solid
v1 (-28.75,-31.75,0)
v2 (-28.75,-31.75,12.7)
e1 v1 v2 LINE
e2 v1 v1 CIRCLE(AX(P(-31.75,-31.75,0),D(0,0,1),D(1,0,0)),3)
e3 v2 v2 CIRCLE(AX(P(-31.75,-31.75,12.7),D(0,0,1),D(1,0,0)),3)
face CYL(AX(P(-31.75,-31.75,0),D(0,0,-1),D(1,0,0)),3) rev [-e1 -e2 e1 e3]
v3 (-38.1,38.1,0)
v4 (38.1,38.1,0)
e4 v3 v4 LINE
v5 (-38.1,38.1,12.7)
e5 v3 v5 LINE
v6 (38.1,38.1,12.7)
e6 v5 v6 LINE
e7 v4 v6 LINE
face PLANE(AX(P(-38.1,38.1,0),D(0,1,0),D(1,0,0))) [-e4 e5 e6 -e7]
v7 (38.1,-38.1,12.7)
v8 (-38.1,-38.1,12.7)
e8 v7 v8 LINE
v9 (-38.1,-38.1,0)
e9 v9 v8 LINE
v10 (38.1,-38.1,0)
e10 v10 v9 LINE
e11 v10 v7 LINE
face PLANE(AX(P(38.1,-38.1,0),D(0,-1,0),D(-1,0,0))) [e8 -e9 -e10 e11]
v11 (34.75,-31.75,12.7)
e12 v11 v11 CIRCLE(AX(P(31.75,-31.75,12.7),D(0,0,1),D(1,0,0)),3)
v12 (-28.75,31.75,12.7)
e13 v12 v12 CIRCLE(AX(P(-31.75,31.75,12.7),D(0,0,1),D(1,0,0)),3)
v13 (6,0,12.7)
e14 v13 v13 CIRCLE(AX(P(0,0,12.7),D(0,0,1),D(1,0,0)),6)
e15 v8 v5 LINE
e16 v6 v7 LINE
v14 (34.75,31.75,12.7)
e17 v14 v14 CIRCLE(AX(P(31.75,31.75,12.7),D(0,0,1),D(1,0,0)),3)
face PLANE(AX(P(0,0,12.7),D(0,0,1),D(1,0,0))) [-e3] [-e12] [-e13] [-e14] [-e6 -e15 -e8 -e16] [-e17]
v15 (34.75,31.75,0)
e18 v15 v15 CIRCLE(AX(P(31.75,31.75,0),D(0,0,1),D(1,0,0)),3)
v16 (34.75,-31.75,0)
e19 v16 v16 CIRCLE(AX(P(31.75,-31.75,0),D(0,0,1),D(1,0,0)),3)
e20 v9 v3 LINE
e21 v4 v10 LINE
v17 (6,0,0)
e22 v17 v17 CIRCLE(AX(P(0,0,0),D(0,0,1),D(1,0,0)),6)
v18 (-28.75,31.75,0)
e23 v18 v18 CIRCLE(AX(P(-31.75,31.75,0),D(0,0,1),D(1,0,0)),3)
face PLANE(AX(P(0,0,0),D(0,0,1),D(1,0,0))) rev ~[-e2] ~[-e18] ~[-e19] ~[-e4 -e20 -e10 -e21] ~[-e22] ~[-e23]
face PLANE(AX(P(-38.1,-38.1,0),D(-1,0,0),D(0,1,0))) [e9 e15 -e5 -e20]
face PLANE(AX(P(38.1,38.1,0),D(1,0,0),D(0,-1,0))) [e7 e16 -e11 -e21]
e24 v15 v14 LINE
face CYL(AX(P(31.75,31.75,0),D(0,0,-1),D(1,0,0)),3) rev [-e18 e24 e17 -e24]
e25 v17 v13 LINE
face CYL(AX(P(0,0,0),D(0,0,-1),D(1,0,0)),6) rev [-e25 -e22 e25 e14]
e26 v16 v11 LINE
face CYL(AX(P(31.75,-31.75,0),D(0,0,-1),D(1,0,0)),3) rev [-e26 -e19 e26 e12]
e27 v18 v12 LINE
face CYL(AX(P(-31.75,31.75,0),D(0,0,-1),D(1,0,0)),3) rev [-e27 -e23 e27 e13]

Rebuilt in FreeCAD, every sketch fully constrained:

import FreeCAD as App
import Part
import Sketcher
Q = App.Units.Quantity


def add_polygon(sketch, points):
    """Adds a closed chain of lines whose ends are joined by coincident constraints."""
    first, n = sketch.GeometryCount, len(points)
    for a, b in zip(points, points[1:] + points[:1]):
        sketch.addGeometry(Part.LineSegment(App.Vector(*a, 0), App.Vector(*b, 0)), False)
    for i in range(n):
        sketch.addConstraint(Sketcher.Constraint("Coincident", first + i, 2, first + (i + 1) % n, 1))

doc = App.newDocument("Part")
body = doc.addObject("PartDesign::Body", "Body")

# Sketch on XY plane
sketch1 = body.newObject("Sketcher::SketchObject", "Sketch")
sketch1.AttachmentSupport = (doc.getObject("XY_Plane"), [""])
sketch1.MapMode = "FlatFace"
add_polygon(sketch1, [(-38.1, -38.1), (38.1, -38.1), (38.1, 38.1), (-38.1, 38.1)])  # lines 0-3
sketch1.addGeometry(Part.Circle(App.Vector(-31.75, -31.75, 0), App.Vector(0, 0, 1), 3), False)  # 4
sketch1.addGeometry(Part.Circle(App.Vector(31.75, -31.75, 0), App.Vector(0, 0, 1), 3), False)  # 5
sketch1.addGeometry(Part.Circle(App.Vector(-31.75, 31.75, 0), App.Vector(0, 0, 1), 3), False)  # 6
sketch1.addGeometry(Part.Circle(App.Vector(0, 0, 0), App.Vector(0, 0, 1), 6), False)  # 7
sketch1.addGeometry(Part.Circle(App.Vector(31.75, 31.75, 0), App.Vector(0, 0, 1), 3), False)  # 8
sketch1.addConstraint([
    Sketcher.Constraint("Horizontal", 0),
    Sketcher.Constraint("Vertical", 1),
    Sketcher.Constraint("Horizontal", 2),
    Sketcher.Constraint("Vertical", 3),
    Sketcher.Constraint("Coincident", 7, 3, -1, 1),
    Sketcher.Constraint("Equal", 4, 5),
    Sketcher.Constraint("Equal", 5, 6),
    Sketcher.Constraint("Equal", 6, 8),
    Sketcher.Constraint("Symmetric", 5, 3, 6, 3, -1, 1),
    Sketcher.Constraint("Symmetric", 4, 3, 8, 3, -1, 1),
    Sketcher.Constraint("Symmetric", 0, 2, 2, 2, -1, 1),
    Sketcher.Constraint("Symmetric", 4, 3, 5, 3, -2),
    Sketcher.Constraint("Equal", 2, 1),
    Sketcher.Constraint("Diameter", 4, Q("6 mm")),
    Sketcher.Constraint("Diameter", 7, Q("12 mm")),
    Sketcher.Constraint("DistanceX", 0, 1, 0, 2, Q("76.2 mm")),
    Sketcher.Constraint("DistanceX", 4, 3, 5, 3, Q("63.5 mm")),
    Sketcher.Constraint("DistanceY", 4, 3, 6, 3, Q("63.5 mm")),
])
pad1 = body.newObject("PartDesign::Pad", "Pad")
pad1.Profile = sketch1
pad1.Length = 12.7

doc.recompute()
